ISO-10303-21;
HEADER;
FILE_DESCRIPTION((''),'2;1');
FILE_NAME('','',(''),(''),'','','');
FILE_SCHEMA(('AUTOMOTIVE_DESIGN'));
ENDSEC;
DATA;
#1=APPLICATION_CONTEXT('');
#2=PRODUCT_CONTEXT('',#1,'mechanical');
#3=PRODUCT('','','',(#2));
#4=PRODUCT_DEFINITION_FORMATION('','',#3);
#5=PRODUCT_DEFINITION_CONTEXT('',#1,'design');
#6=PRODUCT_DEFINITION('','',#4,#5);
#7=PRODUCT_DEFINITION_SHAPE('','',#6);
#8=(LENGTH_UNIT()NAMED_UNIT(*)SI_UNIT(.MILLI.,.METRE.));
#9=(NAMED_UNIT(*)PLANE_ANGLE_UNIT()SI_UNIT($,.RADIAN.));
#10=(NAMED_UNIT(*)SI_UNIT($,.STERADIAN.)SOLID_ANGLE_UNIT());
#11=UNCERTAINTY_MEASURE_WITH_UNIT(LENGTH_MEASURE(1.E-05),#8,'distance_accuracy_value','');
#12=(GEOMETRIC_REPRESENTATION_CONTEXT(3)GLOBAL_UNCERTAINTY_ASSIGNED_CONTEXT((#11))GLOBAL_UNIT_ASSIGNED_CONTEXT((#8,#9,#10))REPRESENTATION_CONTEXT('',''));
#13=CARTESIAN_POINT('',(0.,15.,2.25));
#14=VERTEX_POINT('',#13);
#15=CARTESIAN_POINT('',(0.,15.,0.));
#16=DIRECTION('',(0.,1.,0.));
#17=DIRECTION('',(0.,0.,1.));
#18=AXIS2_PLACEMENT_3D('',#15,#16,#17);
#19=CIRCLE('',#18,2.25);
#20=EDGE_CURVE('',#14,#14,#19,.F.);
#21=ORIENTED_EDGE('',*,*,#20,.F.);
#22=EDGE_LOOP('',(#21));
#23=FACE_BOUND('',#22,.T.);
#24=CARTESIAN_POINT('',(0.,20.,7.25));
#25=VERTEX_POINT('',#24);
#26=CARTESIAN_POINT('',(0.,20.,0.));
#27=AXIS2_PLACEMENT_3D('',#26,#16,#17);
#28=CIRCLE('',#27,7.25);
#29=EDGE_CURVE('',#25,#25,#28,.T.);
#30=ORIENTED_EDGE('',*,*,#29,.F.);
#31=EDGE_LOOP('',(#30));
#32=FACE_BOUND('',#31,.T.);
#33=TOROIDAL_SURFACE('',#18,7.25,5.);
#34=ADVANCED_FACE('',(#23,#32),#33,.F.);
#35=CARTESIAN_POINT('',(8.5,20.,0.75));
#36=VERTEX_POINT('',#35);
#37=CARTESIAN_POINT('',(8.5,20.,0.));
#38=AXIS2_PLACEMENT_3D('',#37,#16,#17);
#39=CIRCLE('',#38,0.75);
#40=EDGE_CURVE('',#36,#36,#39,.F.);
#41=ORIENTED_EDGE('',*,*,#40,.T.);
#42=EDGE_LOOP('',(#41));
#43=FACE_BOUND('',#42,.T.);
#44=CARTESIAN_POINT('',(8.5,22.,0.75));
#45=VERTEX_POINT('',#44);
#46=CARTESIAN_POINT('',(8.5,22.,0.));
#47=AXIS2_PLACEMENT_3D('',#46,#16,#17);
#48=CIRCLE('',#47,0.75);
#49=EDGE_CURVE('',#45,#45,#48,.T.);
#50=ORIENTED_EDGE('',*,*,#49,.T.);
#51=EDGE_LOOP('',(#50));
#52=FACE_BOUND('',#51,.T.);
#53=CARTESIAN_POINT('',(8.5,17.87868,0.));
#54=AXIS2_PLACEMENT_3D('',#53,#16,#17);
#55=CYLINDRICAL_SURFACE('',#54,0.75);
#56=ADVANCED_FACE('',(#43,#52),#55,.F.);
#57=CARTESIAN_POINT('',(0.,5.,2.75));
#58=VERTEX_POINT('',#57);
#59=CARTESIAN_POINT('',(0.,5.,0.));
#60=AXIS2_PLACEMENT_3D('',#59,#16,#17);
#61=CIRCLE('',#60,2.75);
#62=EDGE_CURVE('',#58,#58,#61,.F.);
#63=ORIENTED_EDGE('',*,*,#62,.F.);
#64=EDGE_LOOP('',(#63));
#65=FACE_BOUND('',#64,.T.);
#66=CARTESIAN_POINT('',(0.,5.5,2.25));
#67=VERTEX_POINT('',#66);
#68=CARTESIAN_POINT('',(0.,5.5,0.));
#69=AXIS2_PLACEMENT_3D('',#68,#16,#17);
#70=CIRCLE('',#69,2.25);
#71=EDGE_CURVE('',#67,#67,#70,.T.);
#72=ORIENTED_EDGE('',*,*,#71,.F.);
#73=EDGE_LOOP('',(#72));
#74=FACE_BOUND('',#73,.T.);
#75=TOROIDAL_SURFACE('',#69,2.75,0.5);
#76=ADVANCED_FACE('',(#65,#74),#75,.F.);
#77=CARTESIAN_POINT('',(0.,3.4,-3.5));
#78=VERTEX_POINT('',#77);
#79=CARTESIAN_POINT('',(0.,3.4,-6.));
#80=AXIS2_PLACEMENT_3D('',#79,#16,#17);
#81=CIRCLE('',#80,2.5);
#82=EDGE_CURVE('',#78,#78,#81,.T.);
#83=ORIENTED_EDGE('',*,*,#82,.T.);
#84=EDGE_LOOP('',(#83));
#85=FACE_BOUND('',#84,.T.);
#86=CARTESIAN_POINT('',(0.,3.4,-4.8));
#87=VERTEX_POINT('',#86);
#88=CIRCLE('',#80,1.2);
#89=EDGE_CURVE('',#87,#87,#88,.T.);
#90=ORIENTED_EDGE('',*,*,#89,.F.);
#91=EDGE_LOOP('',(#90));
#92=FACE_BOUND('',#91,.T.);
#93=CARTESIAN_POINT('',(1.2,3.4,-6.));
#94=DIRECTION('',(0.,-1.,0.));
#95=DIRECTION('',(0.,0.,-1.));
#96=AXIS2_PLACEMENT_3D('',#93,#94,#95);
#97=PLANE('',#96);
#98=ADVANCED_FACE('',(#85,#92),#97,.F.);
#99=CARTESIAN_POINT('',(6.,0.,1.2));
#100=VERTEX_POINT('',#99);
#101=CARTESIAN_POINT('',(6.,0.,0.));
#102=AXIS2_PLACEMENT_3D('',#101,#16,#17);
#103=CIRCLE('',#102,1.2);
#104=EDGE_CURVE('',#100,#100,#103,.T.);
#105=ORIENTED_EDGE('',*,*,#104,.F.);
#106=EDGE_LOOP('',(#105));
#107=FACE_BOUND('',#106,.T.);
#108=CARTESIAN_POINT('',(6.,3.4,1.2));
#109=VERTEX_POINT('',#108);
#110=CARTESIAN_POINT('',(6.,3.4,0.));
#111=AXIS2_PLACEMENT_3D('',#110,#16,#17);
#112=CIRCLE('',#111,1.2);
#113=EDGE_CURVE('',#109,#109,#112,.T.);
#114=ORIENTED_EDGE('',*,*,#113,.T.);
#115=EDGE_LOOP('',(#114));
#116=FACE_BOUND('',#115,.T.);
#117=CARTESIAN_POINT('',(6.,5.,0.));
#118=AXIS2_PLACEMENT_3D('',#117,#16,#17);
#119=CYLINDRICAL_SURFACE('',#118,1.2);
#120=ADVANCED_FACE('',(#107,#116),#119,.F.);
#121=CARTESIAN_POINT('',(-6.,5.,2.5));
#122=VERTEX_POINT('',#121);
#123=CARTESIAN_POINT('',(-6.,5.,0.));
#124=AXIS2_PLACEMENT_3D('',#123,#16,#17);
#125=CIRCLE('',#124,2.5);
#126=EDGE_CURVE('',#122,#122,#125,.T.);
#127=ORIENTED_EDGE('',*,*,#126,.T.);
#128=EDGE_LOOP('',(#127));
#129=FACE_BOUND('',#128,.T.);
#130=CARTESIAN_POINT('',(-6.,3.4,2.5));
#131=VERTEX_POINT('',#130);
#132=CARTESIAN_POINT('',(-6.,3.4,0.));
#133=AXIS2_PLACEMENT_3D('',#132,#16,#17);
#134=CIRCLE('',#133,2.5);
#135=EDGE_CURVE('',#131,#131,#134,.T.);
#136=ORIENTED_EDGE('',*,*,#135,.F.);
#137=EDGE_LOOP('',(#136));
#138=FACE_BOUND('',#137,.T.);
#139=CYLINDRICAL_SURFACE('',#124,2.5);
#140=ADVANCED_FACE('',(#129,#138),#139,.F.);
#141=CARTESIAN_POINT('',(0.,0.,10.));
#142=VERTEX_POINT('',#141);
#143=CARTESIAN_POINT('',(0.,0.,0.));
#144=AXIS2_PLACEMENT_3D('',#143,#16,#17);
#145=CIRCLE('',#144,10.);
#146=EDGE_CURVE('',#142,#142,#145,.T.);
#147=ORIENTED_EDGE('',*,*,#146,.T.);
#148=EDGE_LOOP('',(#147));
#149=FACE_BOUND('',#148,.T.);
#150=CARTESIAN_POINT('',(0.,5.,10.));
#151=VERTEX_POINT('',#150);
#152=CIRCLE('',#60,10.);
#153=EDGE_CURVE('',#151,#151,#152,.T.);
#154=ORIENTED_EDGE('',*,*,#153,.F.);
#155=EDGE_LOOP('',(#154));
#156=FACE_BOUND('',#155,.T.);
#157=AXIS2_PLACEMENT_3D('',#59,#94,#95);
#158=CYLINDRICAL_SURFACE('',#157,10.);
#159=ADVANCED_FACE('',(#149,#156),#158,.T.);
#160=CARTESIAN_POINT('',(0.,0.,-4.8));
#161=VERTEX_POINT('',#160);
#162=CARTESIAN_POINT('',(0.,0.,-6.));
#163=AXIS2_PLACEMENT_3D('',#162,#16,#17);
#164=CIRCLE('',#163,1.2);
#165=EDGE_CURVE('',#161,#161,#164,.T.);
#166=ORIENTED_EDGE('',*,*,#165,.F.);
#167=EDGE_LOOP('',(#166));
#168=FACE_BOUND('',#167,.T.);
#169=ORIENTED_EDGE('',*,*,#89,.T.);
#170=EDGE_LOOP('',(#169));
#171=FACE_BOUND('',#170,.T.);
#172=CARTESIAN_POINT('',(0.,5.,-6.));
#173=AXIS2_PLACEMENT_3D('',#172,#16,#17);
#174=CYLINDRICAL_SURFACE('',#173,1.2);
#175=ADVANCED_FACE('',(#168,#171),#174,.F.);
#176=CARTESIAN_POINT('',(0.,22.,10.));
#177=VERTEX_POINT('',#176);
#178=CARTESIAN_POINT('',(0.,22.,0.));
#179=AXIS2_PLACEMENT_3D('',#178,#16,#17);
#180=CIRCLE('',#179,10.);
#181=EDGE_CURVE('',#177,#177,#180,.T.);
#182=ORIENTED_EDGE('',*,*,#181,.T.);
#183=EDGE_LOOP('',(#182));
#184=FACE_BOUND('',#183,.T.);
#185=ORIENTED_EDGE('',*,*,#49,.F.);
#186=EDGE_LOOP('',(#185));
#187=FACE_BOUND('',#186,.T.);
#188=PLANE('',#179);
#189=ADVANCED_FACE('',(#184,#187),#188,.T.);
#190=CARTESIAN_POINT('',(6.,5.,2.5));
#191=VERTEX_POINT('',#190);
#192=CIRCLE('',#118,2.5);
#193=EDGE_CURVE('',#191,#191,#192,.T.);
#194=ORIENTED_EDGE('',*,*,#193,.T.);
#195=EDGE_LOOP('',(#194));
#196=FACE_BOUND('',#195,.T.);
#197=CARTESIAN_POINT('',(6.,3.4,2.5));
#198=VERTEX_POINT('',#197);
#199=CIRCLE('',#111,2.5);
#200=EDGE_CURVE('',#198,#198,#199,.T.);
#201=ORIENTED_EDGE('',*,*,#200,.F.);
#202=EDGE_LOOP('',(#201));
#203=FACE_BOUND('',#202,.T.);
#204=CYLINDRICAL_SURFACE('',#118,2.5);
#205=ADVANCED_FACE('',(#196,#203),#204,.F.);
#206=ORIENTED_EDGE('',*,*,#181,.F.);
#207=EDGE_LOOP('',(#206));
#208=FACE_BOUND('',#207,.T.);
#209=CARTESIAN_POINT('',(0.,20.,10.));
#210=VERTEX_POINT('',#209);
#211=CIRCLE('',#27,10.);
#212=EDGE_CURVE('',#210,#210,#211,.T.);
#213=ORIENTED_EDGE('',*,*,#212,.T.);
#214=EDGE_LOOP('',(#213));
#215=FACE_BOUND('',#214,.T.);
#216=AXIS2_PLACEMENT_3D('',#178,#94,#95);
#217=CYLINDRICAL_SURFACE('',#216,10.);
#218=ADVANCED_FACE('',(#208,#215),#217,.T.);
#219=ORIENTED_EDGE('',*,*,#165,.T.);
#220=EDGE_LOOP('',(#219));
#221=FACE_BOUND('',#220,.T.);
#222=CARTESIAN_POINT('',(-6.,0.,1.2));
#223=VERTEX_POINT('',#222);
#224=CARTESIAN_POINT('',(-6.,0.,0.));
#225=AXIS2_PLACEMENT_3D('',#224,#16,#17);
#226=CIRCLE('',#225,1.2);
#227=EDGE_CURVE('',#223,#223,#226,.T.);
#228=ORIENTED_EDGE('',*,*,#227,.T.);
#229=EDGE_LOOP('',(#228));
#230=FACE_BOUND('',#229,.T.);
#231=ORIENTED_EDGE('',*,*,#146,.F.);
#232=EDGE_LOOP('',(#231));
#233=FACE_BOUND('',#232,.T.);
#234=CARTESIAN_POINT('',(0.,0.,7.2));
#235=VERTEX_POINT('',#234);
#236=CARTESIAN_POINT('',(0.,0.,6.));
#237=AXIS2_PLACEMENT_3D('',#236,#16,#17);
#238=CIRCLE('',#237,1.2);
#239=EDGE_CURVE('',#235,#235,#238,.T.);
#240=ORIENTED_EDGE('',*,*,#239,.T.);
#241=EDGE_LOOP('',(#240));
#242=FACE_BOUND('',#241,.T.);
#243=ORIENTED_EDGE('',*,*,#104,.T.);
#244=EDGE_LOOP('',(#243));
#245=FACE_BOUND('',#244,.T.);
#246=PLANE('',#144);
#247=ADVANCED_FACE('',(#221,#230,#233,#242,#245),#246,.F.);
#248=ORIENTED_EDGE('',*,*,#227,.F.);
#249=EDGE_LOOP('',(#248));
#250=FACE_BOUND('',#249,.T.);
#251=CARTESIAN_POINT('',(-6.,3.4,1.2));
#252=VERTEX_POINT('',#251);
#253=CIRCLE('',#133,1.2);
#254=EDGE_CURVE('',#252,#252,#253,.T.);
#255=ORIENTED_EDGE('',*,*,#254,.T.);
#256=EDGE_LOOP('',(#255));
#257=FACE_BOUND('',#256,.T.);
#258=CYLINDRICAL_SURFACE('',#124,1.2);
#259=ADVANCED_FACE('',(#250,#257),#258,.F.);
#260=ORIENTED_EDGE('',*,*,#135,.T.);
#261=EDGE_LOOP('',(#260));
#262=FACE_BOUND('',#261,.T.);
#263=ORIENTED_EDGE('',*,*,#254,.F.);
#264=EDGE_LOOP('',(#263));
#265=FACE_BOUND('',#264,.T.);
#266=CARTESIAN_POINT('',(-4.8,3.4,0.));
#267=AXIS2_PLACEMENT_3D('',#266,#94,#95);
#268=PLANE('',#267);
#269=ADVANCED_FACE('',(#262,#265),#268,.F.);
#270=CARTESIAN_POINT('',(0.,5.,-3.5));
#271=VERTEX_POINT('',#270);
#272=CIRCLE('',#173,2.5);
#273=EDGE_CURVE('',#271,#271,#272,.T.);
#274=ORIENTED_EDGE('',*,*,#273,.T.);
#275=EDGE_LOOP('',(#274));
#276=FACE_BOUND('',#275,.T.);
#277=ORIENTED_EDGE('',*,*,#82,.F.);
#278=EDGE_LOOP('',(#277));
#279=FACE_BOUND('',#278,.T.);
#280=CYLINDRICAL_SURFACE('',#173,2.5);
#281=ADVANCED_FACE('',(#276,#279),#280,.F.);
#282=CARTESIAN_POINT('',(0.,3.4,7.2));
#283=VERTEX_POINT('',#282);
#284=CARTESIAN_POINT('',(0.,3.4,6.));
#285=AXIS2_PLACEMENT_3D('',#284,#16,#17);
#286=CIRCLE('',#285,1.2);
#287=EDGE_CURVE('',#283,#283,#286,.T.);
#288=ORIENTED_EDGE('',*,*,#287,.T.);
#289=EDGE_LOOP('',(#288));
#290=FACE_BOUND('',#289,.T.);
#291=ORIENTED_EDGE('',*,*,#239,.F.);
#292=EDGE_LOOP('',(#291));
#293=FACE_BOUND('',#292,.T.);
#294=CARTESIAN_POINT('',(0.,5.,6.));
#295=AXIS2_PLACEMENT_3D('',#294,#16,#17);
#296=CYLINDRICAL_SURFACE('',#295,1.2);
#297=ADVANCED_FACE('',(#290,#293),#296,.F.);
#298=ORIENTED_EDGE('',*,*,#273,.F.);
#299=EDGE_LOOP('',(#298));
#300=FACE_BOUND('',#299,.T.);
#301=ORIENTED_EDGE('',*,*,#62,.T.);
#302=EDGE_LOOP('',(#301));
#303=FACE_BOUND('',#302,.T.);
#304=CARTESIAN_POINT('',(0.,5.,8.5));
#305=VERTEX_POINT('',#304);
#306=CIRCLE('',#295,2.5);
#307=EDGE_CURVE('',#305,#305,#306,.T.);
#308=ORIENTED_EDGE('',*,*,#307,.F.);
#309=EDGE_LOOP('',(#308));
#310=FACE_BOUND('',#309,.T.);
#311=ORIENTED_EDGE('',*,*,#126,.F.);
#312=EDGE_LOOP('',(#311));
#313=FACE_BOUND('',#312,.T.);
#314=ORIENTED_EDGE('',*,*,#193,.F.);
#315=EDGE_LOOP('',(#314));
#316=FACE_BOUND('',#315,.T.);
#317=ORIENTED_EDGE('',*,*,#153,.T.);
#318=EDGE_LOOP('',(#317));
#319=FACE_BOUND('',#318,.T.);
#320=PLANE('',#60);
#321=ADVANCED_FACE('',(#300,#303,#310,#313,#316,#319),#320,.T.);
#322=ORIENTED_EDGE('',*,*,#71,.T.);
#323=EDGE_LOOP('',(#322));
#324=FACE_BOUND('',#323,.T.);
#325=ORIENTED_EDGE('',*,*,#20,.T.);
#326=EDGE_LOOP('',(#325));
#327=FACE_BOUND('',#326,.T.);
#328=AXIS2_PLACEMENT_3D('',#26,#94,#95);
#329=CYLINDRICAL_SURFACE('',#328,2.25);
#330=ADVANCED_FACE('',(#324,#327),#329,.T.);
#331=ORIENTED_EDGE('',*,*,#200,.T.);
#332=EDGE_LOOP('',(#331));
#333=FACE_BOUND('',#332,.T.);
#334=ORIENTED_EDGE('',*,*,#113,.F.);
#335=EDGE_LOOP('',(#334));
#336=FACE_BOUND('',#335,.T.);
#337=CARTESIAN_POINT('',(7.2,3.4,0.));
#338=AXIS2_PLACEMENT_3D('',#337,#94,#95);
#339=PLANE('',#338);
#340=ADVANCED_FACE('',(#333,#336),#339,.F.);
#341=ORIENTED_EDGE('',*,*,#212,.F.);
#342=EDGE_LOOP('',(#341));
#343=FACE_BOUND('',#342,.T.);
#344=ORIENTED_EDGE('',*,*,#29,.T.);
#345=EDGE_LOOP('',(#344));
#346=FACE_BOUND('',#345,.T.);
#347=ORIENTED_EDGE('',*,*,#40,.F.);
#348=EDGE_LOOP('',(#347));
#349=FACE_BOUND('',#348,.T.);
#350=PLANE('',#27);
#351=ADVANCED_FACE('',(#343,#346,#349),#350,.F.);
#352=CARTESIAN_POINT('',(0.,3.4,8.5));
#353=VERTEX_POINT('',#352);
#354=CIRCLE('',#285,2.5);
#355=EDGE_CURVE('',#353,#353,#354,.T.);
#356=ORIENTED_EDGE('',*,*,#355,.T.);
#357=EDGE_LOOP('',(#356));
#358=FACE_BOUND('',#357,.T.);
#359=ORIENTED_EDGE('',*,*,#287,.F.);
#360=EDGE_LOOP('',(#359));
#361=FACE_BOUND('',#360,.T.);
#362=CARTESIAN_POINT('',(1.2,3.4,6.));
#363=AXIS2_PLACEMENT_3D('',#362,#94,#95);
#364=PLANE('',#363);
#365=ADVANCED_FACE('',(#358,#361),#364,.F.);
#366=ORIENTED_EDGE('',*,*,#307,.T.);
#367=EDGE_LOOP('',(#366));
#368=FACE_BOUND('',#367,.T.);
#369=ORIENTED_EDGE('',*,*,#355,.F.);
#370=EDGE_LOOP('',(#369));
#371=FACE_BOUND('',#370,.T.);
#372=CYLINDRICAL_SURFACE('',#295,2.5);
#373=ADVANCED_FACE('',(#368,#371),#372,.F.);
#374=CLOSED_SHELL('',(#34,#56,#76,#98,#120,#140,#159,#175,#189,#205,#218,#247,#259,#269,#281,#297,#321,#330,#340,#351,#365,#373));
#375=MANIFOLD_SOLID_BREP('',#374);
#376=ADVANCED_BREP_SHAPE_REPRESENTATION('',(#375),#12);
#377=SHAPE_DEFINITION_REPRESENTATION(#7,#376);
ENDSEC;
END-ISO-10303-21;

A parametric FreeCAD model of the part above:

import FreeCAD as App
import Part
import Sketcher

V = App.Vector
Q = App.Units.Quantity


def edges_at(feature, points):
    """Names of the edges that pass closest to the given points."""
    edges = feature.Shape.Edges
    near = lambda p: min(range(len(edges)), key=lambda i: edges[i].distToShape(Part.Vertex(*p))[0])
    return sorted({f"Edge{near(p) + 1}" for p in points})

doc = App.newDocument("Part")
params = doc.addObject("Spreadsheet::Sheet", "Params")
for row, (alias, value) in enumerate([
    ("sketch1_diameter", "20 mm"),
    ("pad1_length", "5 mm"),
    ("sketch2_diameter", "2.4 mm"),
    ("hole_diameter", "2.4 mm"),
    ("hole_cbore_diameter", "5 mm"),
    ("hole_cbore_depth", "1.6 mm"),
    ("sketch3_diameter", "4.5 mm"),
    ("pad2_length", "15 mm"),
    ("fillet_radius", "0.5 mm"),
    ("sketch4_diameter", "20 mm"),
    ("pad3_length", "2 mm"),
    ("sketch5_diameter", "1.5 mm"),
    ("pocket1_length", "2 mm"),
    ("fillet2_radius", "5 mm"),
], start=1):
    params.set(f"A{row}", alias)
    params.set(f"B{row}", "=" + value)
    params.setAlias(f"B{row}", alias)

body = doc.addObject("PartDesign::Body", "Body")

sketch1 = body.newObject("Sketcher::SketchObject", "Sketch")
sketch1.AttachmentSupport = (doc.getObject("XZ_Plane"), [""])
sketch1.MapMode = "FlatFace"
sketch1.addGeometry(Part.Circle(V(0, 0, 0), V(0, 0, 1), 10), False)
sketch1.addConstraint([
    Sketcher.Constraint("Coincident", 0, 3, -1, 1),
    Sketcher.Constraint("Diameter", 0, Q("20 mm")),
])
sketch1.setExpression("Constraints[1]", "Params.sketch1_diameter")
pad1 = body.newObject("PartDesign::Pad", "Pad")
pad1.Profile = sketch1
pad1.setExpression("Length", "Params.pad1_length")
pad1.Reversed = True

sketch2 = body.newObject("Sketcher::SketchObject", "Sketch001")
sketch2.AttachmentSupport = (doc.getObject("XZ_Plane"), [""])
sketch2.MapMode = "FlatFace"
sketch2.AttachmentOffset = App.Placement(V(0, 0, -5), App.Rotation())
sketch2.addGeometry(Part.Circle(V(6, 0, 0), V(0, 0, 1), 1.2), False)
sketch2.addConstraint([
    Sketcher.Constraint("PointOnObject", 0, 3, -1),
    Sketcher.Constraint("Diameter", 0, Q("2.4 mm")),
    Sketcher.Constraint("DistanceX", -1, 1, 0, 3, Q("6 mm")),
])
sketch2.setExpression("Constraints[1]", "Params.sketch2_diameter")
doc.recompute()
hole = body.newObject("PartDesign::Hole", "Hole")
hole.Profile = sketch2
hole.ThreadType = "None"
hole.setExpression("Diameter", "Params.hole_diameter")
hole.DepthType = "ThroughAll"
hole.HoleCutType = "Counterbore"
hole.setExpression("HoleCutDiameter", "Params.hole_cbore_diameter")
hole.setExpression("HoleCutDepth", "Params.hole_cbore_depth")
hole.Reversed = True

sketch3 = body.newObject("Sketcher::SketchObject", "Sketch002")
sketch3.AttachmentSupport = (doc.getObject("XZ_Plane"), [""])
sketch3.MapMode = "FlatFace"
sketch3.AttachmentOffset = App.Placement(V(0, 0, -5), App.Rotation())
sketch3.addGeometry(Part.Circle(V(0, 0, 0), V(0, 0, 1), 2.2), False)
sketch3.addConstraint([
    Sketcher.Constraint("Coincident", 0, 3, -1, 1),
    Sketcher.Constraint("Diameter", 0, Q("4.5 mm")),
])
sketch3.setExpression("Constraints[1]", "Params.sketch3_diameter")
pad2 = body.newObject("PartDesign::Pad", "Pad001")
pad2.Profile = sketch3
pad2.setExpression("Length", "Params.pad2_length")
pad2.Reversed = True
doc.recompute()

polarpattern = body.newObject("PartDesign::PolarPattern", "PolarPattern")
polarpattern.Originals = [hole]
polarpattern.Axis = (doc.getObject("Y_Axis"), [""])
polarpattern.Angle = 360
polarpattern.Occurrences = 4
body.Tip = polarpattern
doc.recompute()

fillet = body.newObject("PartDesign::Fillet", "Fillet")
fillet.Base = (polarpattern, edges_at(polarpattern, [(0, 5, -2.25)]))
fillet.setExpression("Radius", "Params.fillet_radius")

sketch4 = body.newObject("Sketcher::SketchObject", "Sketch003")
sketch4.AttachmentSupport = (doc.getObject("XZ_Plane"), [""])
sketch4.MapMode = "FlatFace"
sketch4.AttachmentOffset = App.Placement(V(0, 0, -20), App.Rotation())
sketch4.addGeometry(Part.Circle(V(0, 0, 0), V(0, 0, 1), 10), False)
sketch4.addConstraint([
    Sketcher.Constraint("Coincident", 0, 3, -1, 1),
    Sketcher.Constraint("Diameter", 0, Q("20 mm")),
])
sketch4.setExpression("Constraints[1]", "Params.sketch4_diameter")
pad3 = body.newObject("PartDesign::Pad", "Pad002")
pad3.Profile = sketch4
pad3.setExpression("Length", "Params.pad3_length")
pad3.Reversed = True

sketch5 = body.newObject("Sketcher::SketchObject", "Sketch004")
sketch5.AttachmentSupport = (doc.getObject("XZ_Plane"), [""])
sketch5.MapMode = "FlatFace"
sketch5.AttachmentOffset = App.Placement(V(0, 0, -22), App.Rotation())
sketch5.addGeometry(Part.Circle(V(8.5, 0, 0), V(0, 0, 1), 0.8), False)
sketch5.addConstraint([
    Sketcher.Constraint("PointOnObject", 0, 3, -1),
    Sketcher.Constraint("Diameter", 0, Q("1.5 mm")),
    Sketcher.Constraint("DistanceX", -1, 1, 0, 3, Q("8.5 mm")),
])
sketch5.setExpression("Constraints[1]", "Params.sketch5_diameter")
pocket1 = body.newObject("PartDesign::Pocket", "Pocket")
pocket1.Profile = sketch5
pocket1.setExpression("Length", "Params.pocket1_length")
pocket1.Reversed = True
doc.recompute()

fillet2 = body.newObject("PartDesign::Fillet", "Fillet001")
fillet2.Base = (pocket1, edges_at(pocket1, [(0, 20, -2.25)]))
fillet2.setExpression("Radius", "Params.fillet2_radius")

doc.recompute()
